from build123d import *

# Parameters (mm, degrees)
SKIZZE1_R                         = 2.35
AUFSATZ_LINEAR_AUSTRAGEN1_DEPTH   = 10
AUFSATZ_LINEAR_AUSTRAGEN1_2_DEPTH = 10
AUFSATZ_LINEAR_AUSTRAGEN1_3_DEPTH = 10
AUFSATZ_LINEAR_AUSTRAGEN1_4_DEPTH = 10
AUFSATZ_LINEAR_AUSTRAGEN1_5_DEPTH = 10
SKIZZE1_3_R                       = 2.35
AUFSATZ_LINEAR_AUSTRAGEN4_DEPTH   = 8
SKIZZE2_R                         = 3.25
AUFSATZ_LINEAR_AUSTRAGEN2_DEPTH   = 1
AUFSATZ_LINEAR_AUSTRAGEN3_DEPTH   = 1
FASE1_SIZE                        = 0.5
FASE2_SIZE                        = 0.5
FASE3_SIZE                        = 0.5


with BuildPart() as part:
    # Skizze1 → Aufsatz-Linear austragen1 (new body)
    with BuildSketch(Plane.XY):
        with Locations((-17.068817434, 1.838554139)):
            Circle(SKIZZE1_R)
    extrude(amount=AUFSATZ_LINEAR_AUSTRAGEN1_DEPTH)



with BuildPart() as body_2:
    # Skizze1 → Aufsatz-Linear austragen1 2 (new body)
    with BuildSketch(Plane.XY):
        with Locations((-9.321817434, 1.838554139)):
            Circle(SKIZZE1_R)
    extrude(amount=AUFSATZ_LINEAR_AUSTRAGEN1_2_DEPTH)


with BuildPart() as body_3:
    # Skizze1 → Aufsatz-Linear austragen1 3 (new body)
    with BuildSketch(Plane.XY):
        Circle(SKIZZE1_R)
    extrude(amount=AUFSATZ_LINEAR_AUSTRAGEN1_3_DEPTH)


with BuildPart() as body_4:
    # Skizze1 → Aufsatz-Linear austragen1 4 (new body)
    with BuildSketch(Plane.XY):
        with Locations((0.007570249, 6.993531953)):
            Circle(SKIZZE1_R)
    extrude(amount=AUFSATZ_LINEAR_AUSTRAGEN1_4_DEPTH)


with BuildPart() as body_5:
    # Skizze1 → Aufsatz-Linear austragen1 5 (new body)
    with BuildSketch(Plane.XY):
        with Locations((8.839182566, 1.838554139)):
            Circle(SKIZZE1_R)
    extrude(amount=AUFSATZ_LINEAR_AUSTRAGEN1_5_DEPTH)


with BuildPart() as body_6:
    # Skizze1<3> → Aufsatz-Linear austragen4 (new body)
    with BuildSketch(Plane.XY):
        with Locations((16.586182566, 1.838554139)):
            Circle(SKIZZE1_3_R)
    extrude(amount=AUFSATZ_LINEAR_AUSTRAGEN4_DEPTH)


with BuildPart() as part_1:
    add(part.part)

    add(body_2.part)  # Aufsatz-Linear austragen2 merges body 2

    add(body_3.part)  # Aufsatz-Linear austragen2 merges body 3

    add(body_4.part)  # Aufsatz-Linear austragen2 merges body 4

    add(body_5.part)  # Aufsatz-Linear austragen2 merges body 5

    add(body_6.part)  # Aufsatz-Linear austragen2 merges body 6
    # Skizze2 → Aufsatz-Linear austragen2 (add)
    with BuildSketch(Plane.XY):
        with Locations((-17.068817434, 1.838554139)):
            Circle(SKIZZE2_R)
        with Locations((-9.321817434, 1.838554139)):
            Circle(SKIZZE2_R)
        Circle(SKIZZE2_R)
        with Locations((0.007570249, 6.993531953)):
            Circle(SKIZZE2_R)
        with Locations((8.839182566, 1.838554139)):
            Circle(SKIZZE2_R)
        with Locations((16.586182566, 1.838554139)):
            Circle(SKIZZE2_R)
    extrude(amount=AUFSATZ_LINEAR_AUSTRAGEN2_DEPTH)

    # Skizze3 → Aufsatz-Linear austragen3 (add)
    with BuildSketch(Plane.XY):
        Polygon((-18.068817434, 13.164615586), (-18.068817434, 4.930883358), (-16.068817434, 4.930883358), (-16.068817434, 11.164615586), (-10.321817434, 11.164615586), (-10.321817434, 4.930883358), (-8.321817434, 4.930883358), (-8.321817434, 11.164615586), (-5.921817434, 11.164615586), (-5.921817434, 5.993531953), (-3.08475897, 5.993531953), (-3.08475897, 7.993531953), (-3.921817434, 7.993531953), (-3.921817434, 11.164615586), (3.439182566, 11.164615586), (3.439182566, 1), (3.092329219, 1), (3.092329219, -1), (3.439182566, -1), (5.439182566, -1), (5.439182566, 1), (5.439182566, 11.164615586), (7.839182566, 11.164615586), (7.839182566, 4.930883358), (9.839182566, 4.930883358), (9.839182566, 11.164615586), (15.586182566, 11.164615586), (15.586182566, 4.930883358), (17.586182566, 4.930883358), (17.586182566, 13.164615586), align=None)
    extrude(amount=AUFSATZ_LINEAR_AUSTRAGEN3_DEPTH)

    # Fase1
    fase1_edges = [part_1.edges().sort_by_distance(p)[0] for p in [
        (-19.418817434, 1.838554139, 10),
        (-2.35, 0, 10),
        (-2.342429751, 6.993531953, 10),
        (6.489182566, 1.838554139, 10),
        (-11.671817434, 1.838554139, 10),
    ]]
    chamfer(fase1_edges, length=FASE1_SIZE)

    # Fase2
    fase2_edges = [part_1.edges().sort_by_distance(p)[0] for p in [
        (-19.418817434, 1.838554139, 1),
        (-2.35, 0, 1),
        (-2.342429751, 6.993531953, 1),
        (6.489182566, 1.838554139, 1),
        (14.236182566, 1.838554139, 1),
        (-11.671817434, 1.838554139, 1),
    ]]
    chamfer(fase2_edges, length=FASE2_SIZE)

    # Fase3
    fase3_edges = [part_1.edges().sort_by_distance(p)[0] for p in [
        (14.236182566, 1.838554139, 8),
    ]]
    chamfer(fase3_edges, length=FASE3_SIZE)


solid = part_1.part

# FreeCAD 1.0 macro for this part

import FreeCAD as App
import Part
import Sketcher


def edges_at(feature, points):
    """Names of the edges that pass closest to the given points."""
    edges = feature.Shape.Edges
    near = lambda p: min(range(len(edges)), key=lambda i: edges[i].distToShape(Part.Vertex(*p))[0])
    return sorted({f"Edge{near(p) + 1}" for p in points})

doc = App.newDocument("Part")
body = doc.addObject("PartDesign::Body", "Body")

sketch1 = body.newObject("Sketcher::SketchObject", "Sketch")
sketch1.AttachmentSupport = (doc.getObject("XY_Plane"), [""])
sketch1.MapMode = "FlatFace"
sketch1.addGeometry(Part.Circle(App.Vector(-17.1, 1.8, 0), App.Vector(0, 0, 1), 2.4), False)
sketch1.addConstraint([
    Sketcher.Constraint("Diameter", 0, 4.7),
    Sketcher.Constraint("DistanceX", 0, 3, -1, 1, 17.068817),
    Sketcher.Constraint("DistanceY", -1, 1, 0, 3, 1.838554),
])
pad1 = body.newObject("PartDesign::Pad", "Pad")
pad1.Profile = sketch1
pad1.Length = 10
body2 = doc.addObject("PartDesign::Body", "Body001")

sketch2 = body2.newObject("Sketcher::SketchObject", "Sketch001")
sketch2.AttachmentSupport = (doc.getObject("XY_Plane001"), [""])
sketch2.MapMode = "FlatFace"
sketch2.addGeometry(Part.Circle(App.Vector(-9.3, 1.8, 0), App.Vector(0, 0, 1), 2.4), False)
sketch2.addConstraint([
    Sketcher.Constraint("Diameter", 0, 4.7),
    Sketcher.Constraint("DistanceX", 0, 3, -1, 1, 9.321817),
    Sketcher.Constraint("DistanceY", -1, 1, 0, 3, 1.838554),
])
pad2 = body2.newObject("PartDesign::Pad", "Pad001")
pad2.Profile = sketch2
pad2.Length = 10
body3 = doc.addObject("PartDesign::Body", "Body002")

sketch3 = body3.newObject("Sketcher::SketchObject", "Sketch002")
sketch3.AttachmentSupport = (doc.getObject("XY_Plane002"), [""])
sketch3.MapMode = "FlatFace"
sketch3.addGeometry(Part.Circle(App.Vector(0, 0, 0), App.Vector(0, 0, 1), 2.4), False)
sketch3.addConstraint([
    Sketcher.Constraint("Coincident", 0, 3, -1, 1),
    Sketcher.Constraint("Diameter", 0, 4.7),
])
pad3 = body3.newObject("PartDesign::Pad", "Pad002")
pad3.Profile = sketch3
pad3.Length = 10
body4 = doc.addObject("PartDesign::Body", "Body003")

sketch4 = body4.newObject("Sketcher::SketchObject", "Sketch003")
sketch4.AttachmentSupport = (doc.getObject("XY_Plane003"), [""])
sketch4.MapMode = "FlatFace"
sketch4.addGeometry(Part.Circle(App.Vector(0, 7, 0), App.Vector(0, 0, 1), 2.4), False)
sketch4.addConstraint([
    Sketcher.Constraint("Diameter", 0, 4.7),
    Sketcher.Constraint("DistanceX", -1, 1, 0, 3, 0.00757),
    Sketcher.Constraint("DistanceY", -1, 1, 0, 3, 6.993532),
])
pad4 = body4.newObject("PartDesign::Pad", "Pad003")
pad4.Profile = sketch4
pad4.Length = 10
body5 = doc.addObject("PartDesign::Body", "Body004")

sketch5 = body5.newObject("Sketcher::SketchObject", "Sketch004")
sketch5.AttachmentSupport = (doc.getObject("XY_Plane004"), [""])
sketch5.MapMode = "FlatFace"
sketch5.addGeometry(Part.Circle(App.Vector(8.8, 1.8, 0), App.Vector(0, 0, 1), 2.4), False)
sketch5.addConstraint([
    Sketcher.Constraint("Diameter", 0, 4.7),
    Sketcher.Constraint("DistanceX", -1, 1, 0, 3, 8.839183),
    Sketcher.Constraint("DistanceY", -1, 1, 0, 3, 1.838554),
])
pad5 = body5.newObject("PartDesign::Pad", "Pad004")
pad5.Profile = sketch5
pad5.Length = 10
body6 = doc.addObject("PartDesign::Body", "Body005")

sketch6 = body6.newObject("Sketcher::SketchObject", "Sketch005")
sketch6.AttachmentSupport = (doc.getObject("XY_Plane005"), [""])
sketch6.MapMode = "FlatFace"
sketch6.addGeometry(Part.Circle(App.Vector(16.6, 1.8, 0), App.Vector(0, 0, 1), 2.4), False)
sketch6.addConstraint([
    Sketcher.Constraint("Diameter", 0, 4.7),
    Sketcher.Constraint("DistanceX", -1, 1, 0, 3, 16.586183),
    Sketcher.Constraint("DistanceY", -1, 1, 0, 3, 1.838554),
])
pad6 = body6.newObject("PartDesign::Pad", "Pad005")
pad6.Profile = sketch6
pad6.Length = 8
body.AllowCompound = True
doc.recompute()

boolean = body.newObject("PartDesign::Boolean", "Boolean")
boolean.Type = "Fuse"
boolean.addObjects([body2])
doc.recompute()

boolean2 = body.newObject("PartDesign::Boolean", "Boolean001")
boolean2.Type = "Fuse"
boolean2.addObjects([body3])
doc.recompute()

boolean3 = body.newObject("PartDesign::Boolean", "Boolean002")
boolean3.Type = "Fuse"
boolean3.addObjects([body4])
doc.recompute()

boolean4 = body.newObject("PartDesign::Boolean", "Boolean003")
boolean4.Type = "Fuse"
boolean4.addObjects([body5])
doc.recompute()

boolean5 = body.newObject("PartDesign::Boolean", "Boolean004")
boolean5.Type = "Fuse"
boolean5.addObjects([body6])

sketch7 = body.newObject("Sketcher::SketchObject", "Sketch006")
sketch7.AttachmentSupport = (doc.getObject("XY_Plane"), [""])
sketch7.MapMode = "FlatFace"
sketch7.addGeometry([
    Part.Circle(App.Vector(-17.1, 1.8, 0), App.Vector(0, 0, 1), 3.2),
    Part.Circle(App.Vector(-9.3, 1.8, 0), App.Vector(0, 0, 1), 3.2),
    Part.Circle(App.Vector(0, 0, 0), App.Vector(0, 0, 1), 3.2),
    Part.Circle(App.Vector(0, 7, 0), App.Vector(0, 0, 1), 3.2),
    Part.Circle(App.Vector(8.8, 1.8, 0), App.Vector(0, 0, 1), 3.2),
    Part.Circle(App.Vector(16.6, 1.8, 0), App.Vector(0, 0, 1), 3.2),
], False)
sketch7.addConstraint([
    Sketcher.Constraint("Coincident", 2, 3, -1, 1),
    Sketcher.Constraint("Equal", 0, 1),
    Sketcher.Constraint("Equal", 1, 2),
    Sketcher.Constraint("Equal", 2, 3),
    Sketcher.Constraint("Equal", 3, 4),
    Sketcher.Constraint("Equal", 4, 5),
    Sketcher.Constraint("Horizontal", 0, 3, 1, 3),
    Sketcher.Constraint("Horizontal", 1, 3, 4, 3),
    Sketcher.Constraint("Horizontal", 4, 3, 5, 3),
    Sketcher.Constraint("Diameter", 0, 6.5),
    Sketcher.Constraint("DistanceX", 0, 3, 1, 3, 7.747),
    Sketcher.Constraint("DistanceX", 1, 3, 4, 3, 18.161),
    Sketcher.Constraint("DistanceX", 4, 3, 5, 3, 7.747),
    Sketcher.Constraint("DistanceX", -1, 1, 3, 3, 0.00757),
    Sketcher.Constraint("DistanceY", -1, 1, 3, 3, 6.993532),
    Sketcher.Constraint("DistanceX", 0, 3, -1, 1, 17.068817),
    Sketcher.Constraint("DistanceY", -1, 1, 0, 3, 1.838554),
])
pad7 = body.newObject("PartDesign::Pad", "Pad006")
pad7.Profile = sketch7
pad7.Length = 1

sketch8 = body.newObject("Sketcher::SketchObject", "Sketch007")
sketch8.AttachmentSupport = (doc.getObject("XY_Plane"), [""])
sketch8.MapMode = "FlatFace"
sketch8.addGeometry([
    Part.LineSegment(App.Vector(-18.07, 13.16, 0), App.Vector(-18.07, 4.93, 0)),
    Part.LineSegment(App.Vector(-18.07, 4.93, 0), App.Vector(-16.07, 4.93, 0)),
    Part.LineSegment(App.Vector(-16.07, 4.93, 0), App.Vector(-16.07, 11.16, 0)),
    Part.LineSegment(App.Vector(-16.07, 11.16, 0), App.Vector(-10.32, 11.16, 0)),
    Part.LineSegment(App.Vector(-10.32, 11.16, 0), App.Vector(-10.32, 4.93, 0)),
    Part.LineSegment(App.Vector(-10.32, 4.93, 0), App.Vector(-8.32, 4.93, 0)),
    Part.LineSegment(App.Vector(-8.32, 4.93, 0), App.Vector(-8.32, 11.16, 0)),
    Part.LineSegment(App.Vector(-8.32, 11.16, 0), App.Vector(-5.92, 11.16, 0)),
    Part.LineSegment(App.Vector(-5.92, 11.16, 0), App.Vector(-5.92, 5.99, 0)),
    Part.LineSegment(App.Vector(-5.92, 5.99, 0), App.Vector(-3.08, 5.99, 0)),
    Part.LineSegment(App.Vector(-3.08, 5.99, 0), App.Vector(-3.08, 7.99, 0)),
    Part.LineSegment(App.Vector(-3.08, 7.99, 0), App.Vector(-3.92, 7.99, 0)),
    Part.LineSegment(App.Vector(-3.92, 7.99, 0), App.Vector(-3.92, 11.16, 0)),
    Part.LineSegment(App.Vector(-3.92, 11.16, 0), App.Vector(3.44, 11.16, 0)),
    Part.LineSegment(App.Vector(3.44, 11.16, 0), App.Vector(3.44, 1, 0)),
    Part.LineSegment(App.Vector(3.44, 1, 0), App.Vector(3.09, 1, 0)),
    Part.LineSegment(App.Vector(3.09, 1, 0), App.Vector(3.09, -1, 0)),
    Part.LineSegment(App.Vector(3.09, -1, 0), App.Vector(5.44, -1, 0)),
    Part.LineSegment(App.Vector(5.44, -1, 0), App.Vector(5.44, 11.16, 0)),
    Part.LineSegment(App.Vector(5.44, 11.16, 0), App.Vector(7.84, 11.16, 0)),
    Part.LineSegment(App.Vector(7.84, 11.16, 0), App.Vector(7.84, 4.93, 0)),
    Part.LineSegment(App.Vector(7.84, 4.93, 0), App.Vector(9.84, 4.93, 0)),
    Part.LineSegment(App.Vector(9.84, 4.93, 0), App.Vector(9.84, 11.16, 0)),
    Part.LineSegment(App.Vector(9.84, 11.16, 0), App.Vector(15.59, 11.16, 0)),
    Part.LineSegment(App.Vector(15.59, 11.16, 0), App.Vector(15.59, 4.93, 0)),
    Part.LineSegment(App.Vector(15.59, 4.93, 0), App.Vector(17.59, 4.93, 0)),
    Part.LineSegment(App.Vector(17.59, 4.93, 0), App.Vector(17.59, 13.16, 0)),
    Part.LineSegment(App.Vector(17.59, 13.16, 0), App.Vector(-18.07, 13.16, 0)),
], False)
sketch8.addConstraint([
    Sketcher.Constraint("Coincident", 0, 2, 1, 1),
    Sketcher.Constraint("Coincident", 1, 2, 2, 1),
    Sketcher.Constraint("Coincident", 2, 2, 3, 1),
    Sketcher.Constraint("Coincident", 3, 2, 4, 1),
    Sketcher.Constraint("Coincident", 4, 2, 5, 1),
    Sketcher.Constraint("Coincident", 5, 2, 6, 1),
    Sketcher.Constraint("Coincident", 6, 2, 7, 1),
    Sketcher.Constraint("Coincident", 7, 2, 8, 1),
    Sketcher.Constraint("Coincident", 8, 2, 9, 1),
    Sketcher.Constraint("Coincident", 9, 2, 10, 1),
    Sketcher.Constraint("Coincident", 10, 2, 11, 1),
    Sketcher.Constraint("Coincident", 11, 2, 12, 1),
    Sketcher.Constraint("Coincident", 12, 2, 13, 1),
    Sketcher.Constraint("Coincident", 13, 2, 14, 1),
    Sketcher.Constraint("Coincident", 14, 2, 15, 1),
    Sketcher.Constraint("Coincident", 15, 2, 16, 1),
    Sketcher.Constraint("Coincident", 16, 2, 17, 1),
    Sketcher.Constraint("Coincident", 17, 2, 18, 1),
    Sketcher.Constraint("Coincident", 18, 2, 19, 1),
    Sketcher.Constraint("Coincident", 19, 2, 20, 1),
    Sketcher.Constraint("Coincident", 20, 2, 21, 1),
    Sketcher.Constraint("Coincident", 21, 2, 22, 1),
    Sketcher.Constraint("Coincident", 22, 2, 23, 1),
    Sketcher.Constraint("Coincident", 23, 2, 24, 1),
    Sketcher.Constraint("Coincident", 24, 2, 25, 1),
    Sketcher.Constraint("Coincident", 25, 2, 26, 1),
    Sketcher.Constraint("Coincident", 26, 2, 27, 1),
    Sketcher.Constraint("Coincident", 27, 2, 0, 1),
    Sketcher.Constraint("Vertical", 0),
    Sketcher.Constraint("Horizontal", 1),
    Sketcher.Constraint("Vertical", 2),
    Sketcher.Constraint("Horizontal", 3),
    Sketcher.Constraint("Vertical", 4),
    Sketcher.Constraint("Horizontal", 5),
    Sketcher.Constraint("Vertical", 6),
    Sketcher.Constraint("Horizontal", 7),
    Sketcher.Constraint("Vertical", 8),
    Sketcher.Constraint("Horizontal", 9),
    Sketcher.Constraint("Vertical", 10),
    Sketcher.Constraint("Horizontal", 11),
    Sketcher.Constraint("Vertical", 12),
    Sketcher.Constraint("Horizontal", 13),
    Sketcher.Constraint("Vertical", 14),
    Sketcher.Constraint("Horizontal", 15),
    Sketcher.Constraint("Vertical", 16),
    Sketcher.Constraint("Horizontal", 17),
    Sketcher.Constraint("Vertical", 18),
    Sketcher.Constraint("Horizontal", 19),
    Sketcher.Constraint("Vertical", 20),
    Sketcher.Constraint("Horizontal", 21),
    Sketcher.Constraint("Vertical", 22),
    Sketcher.Constraint("Horizontal", 23),
    Sketcher.Constraint("Vertical", 24),
    Sketcher.Constraint("Horizontal", 25),
    Sketcher.Constraint("Vertical", 26),
    Sketcher.Constraint("Horizontal", 27),
    Sketcher.Constraint("Horizontal", 1, 2, 4, 2),
    Sketcher.Constraint("Horizontal", 3, 2, 6, 2),
    Sketcher.Constraint("Horizontal", 7, 2, 12, 2),
    Sketcher.Constraint("Horizontal", 13, 2, 18, 2),
    Sketcher.Constraint("Horizontal", 5, 2, 20, 2),
    Sketcher.Constraint("Horizontal", 19, 2, 22, 2),
    Sketcher.Constraint("Horizontal", 21, 2, 24, 2),
    Sketcher.Constraint("Equal", 1, 5),
    Sketcher.Constraint("Equal", 7, 19),
    Sketcher.Constraint("Equal", 5, 21),
    Sketcher.Constraint("Equal", 3, 23),
    Sketcher.Constraint("Equal", 21, 25),
    Sketcher.Constraint("Equal", 25, 10),
    Sketcher.Constraint("Equal", 10, 16),
    Sketcher.Constraint("DistanceX", 1, 1, 1, 2, 2.0),
    Sketcher.Constraint("DistanceX", 7, 1, 7, 2, 2.4),
    Sketcher.Constraint("DistanceY", -1, 1, 14, 2, 1.0),
    Sketcher.Constraint("DistanceX", 8, 2, 11, 2, 2.0),
    Sketcher.Constraint("DistanceX", 14, 2, 17, 2, 2.0),
    Sketcher.Constraint("DistanceY", 23, 2, 26, 2, 2.0),
    Sketcher.Constraint("DistanceX", 3, 1, 3, 2, 5.747),
    Sketcher.Constraint("DistanceX", 13, 1, 13, 2, 7.361),
    Sketcher.Constraint("DistanceX", 9, 1, 9, 2, 2.837058),
    Sketcher.Constraint("DistanceX", 15, 2, 15, 1, 0.346853),
    Sketcher.Constraint("DistanceY", 0, 2, 0, 1, 8.233732),
    Sketcher.Constraint("DistanceY", 8, 2, 8, 1, 5.171084),
    Sketcher.Constraint("DistanceY", 14, 2, 14, 1, 10.164616),
    Sketcher.Constraint("DistanceX", 9, 2, -1, 1, 3.084759),
])
pad8 = body.newObject("PartDesign::Pad", "Pad007")
pad8.Profile = sketch8
pad8.Length = 1
doc.recompute()

chamfer = body.newObject("PartDesign::Chamfer", "Chamfer")
chamfer.Base = (pad8, edges_at(pad8, [
    (-19.419, 1.839, 10),
    (-2.35, 0, 10),
    (-2.342, 6.994, 10),
    (6.489, 1.839, 10),
    (-11.672, 1.839, 10),
]))
chamfer.Size = 0.5
doc.recompute()

chamfer2 = body.newObject("PartDesign::Chamfer", "Chamfer001")
chamfer2.Base = (chamfer, edges_at(chamfer, [
    (-19.419, 1.839, 1),
    (-2.35, 0, 1),
    (-2.342, 6.994, 1),
    (6.489, 1.839, 1),
    (14.236, 1.839, 1),
    (-11.672, 1.839, 1),
]))
chamfer2.Size = 0.5
doc.recompute()

chamfer3 = body.newObject("PartDesign::Chamfer", "Chamfer002")
chamfer3.Base = (chamfer2, edges_at(chamfer2, [(14.236, 1.839, 8)]))
chamfer3.Size = 0.5

doc.recompute()
